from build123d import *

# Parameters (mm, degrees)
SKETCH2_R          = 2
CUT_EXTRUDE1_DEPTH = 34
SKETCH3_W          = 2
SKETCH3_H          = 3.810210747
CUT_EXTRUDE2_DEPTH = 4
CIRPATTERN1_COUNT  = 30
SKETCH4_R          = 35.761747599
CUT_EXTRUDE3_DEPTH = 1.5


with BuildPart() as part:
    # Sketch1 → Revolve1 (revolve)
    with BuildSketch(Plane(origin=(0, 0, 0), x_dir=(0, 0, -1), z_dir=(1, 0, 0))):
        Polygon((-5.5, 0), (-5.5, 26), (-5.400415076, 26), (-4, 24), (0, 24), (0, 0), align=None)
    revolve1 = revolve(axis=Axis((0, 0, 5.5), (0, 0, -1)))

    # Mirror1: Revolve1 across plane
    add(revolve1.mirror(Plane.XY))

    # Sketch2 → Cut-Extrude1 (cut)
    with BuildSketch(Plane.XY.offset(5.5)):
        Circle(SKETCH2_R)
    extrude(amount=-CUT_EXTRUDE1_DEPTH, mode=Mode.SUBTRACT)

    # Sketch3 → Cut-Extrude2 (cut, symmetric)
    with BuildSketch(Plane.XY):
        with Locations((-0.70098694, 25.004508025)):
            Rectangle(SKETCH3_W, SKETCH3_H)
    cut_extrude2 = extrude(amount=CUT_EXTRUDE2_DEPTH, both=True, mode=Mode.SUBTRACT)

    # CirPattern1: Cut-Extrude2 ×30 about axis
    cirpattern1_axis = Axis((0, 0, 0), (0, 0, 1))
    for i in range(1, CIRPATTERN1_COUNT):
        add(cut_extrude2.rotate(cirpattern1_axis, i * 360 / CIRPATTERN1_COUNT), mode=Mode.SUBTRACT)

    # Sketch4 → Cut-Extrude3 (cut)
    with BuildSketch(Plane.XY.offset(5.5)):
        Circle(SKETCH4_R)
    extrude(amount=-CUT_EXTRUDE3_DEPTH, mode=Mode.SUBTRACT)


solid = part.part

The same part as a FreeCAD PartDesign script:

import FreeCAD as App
import Part
import Sketcher

V = App.Vector
Q = App.Units.Quantity

doc = App.newDocument("Part")
body = doc.addObject("PartDesign::Body", "Body")

# Sketch on YZ plane
sketch1 = body.newObject("Sketcher::SketchObject", "Sketch")
sketch1.AttachmentSupport = (doc.getObject("YZ_Plane"), [""])
sketch1.MapMode = "FlatFace"
sketch1.addGeometry([
    Part.LineSegment(V(26, 5.5, 0), V(0, 5.5, 0)),  # 0
    Part.LineSegment(V(0, 5.5, 0), V(0, 0, 0)),  # 1
    Part.LineSegment(V(0, 0, 0), V(24, 0, 0)),  # 2
    Part.LineSegment(V(24, 0, 0), V(24, 4, 0)),  # 3
    Part.LineSegment(V(24, 4, 0), V(26, 5.4, 0)),  # 4
    Part.LineSegment(V(26, 5.4, 0), V(26, 5.5, 0)),  # 5
], False)
sketch1.addConstraint([
    Sketcher.Constraint("Coincident", 0, 2, 1, 1),
    Sketcher.Constraint("Coincident", 1, 2, 2, 1),
    Sketcher.Constraint("Coincident", 2, 2, 3, 1),
    Sketcher.Constraint("Coincident", 3, 2, 4, 1),
    Sketcher.Constraint("Coincident", 4, 2, 5, 1),
    Sketcher.Constraint("Coincident", 5, 2, 0, 1),
    Sketcher.Constraint("Horizontal", 0),
    Sketcher.Constraint("Vertical", 1),
    Sketcher.Constraint("Horizontal", 2),
    Sketcher.Constraint("Vertical", 3),
    Sketcher.Constraint("Vertical", 5),
    Sketcher.Constraint("Coincident", 1, 2, -1, 1),
    Sketcher.Constraint("DistanceX", 0, 2, 0, 1, Q("26 mm")),
    Sketcher.Constraint("DistanceX", 2, 1, 2, 2, Q("24 mm")),
    Sketcher.Constraint("DistanceY", 3, 1, 3, 2, Q("4 mm")),
    Sketcher.Constraint("Angle", 4, Q("35 deg")),
    Sketcher.Constraint("DistanceY", 1, 2, 1, 1, Q("5.5 mm")),
])
revolution = body.newObject("PartDesign::Revolution", "Revolution")
revolution.Profile = sketch1
revolution.ReferenceAxis = (sketch1, ["V_Axis"])
revolution.Angle = 360
doc.recompute()

mirrored = body.newObject("PartDesign::Mirrored", "Mirrored")
mirrored.Originals = [revolution]
mirrored.MirrorPlane = (doc.getObject("XY_Plane"), [""])
body.Tip = mirrored

# Sketch on XY plane
sketch2 = body.newObject("Sketcher::SketchObject", "Sketch001")
sketch2.AttachmentSupport = (doc.getObject("XY_Plane"), [""])
sketch2.MapMode = "FlatFace"
sketch2.AttachmentOffset = App.Placement(V(0, 0, 5.5), App.Rotation())
sketch2.addGeometry(Part.Circle(V(0, 0, 0), V(0, 0, 1), 2), False)
sketch2.addConstraint([
    Sketcher.Constraint("Coincident", 0, 3, -1, 1),
    Sketcher.Constraint("Diameter", 0, Q("4 mm")),
])
pocket1 = body.newObject("PartDesign::Pocket", "Pocket")
pocket1.Profile = sketch2
pocket1.Length = 34

# Sketch on XY plane
sketch3 = body.newObject("Sketcher::SketchObject", "Sketch002")
sketch3.AttachmentSupport = (doc.getObject("XY_Plane"), [""])
sketch3.MapMode = "FlatFace"
sketch3.addGeometry([
    Part.LineSegment(V(-1.7, 26.9, 0), V(-1.7, 23.1, 0)),
    Part.LineSegment(V(-1.7, 23.1, 0), V(0.3, 23.1, 0)),
    Part.LineSegment(V(0.3, 23.1, 0), V(0.3, 26.9, 0)),
    Part.LineSegment(V(0.3, 26.9, 0), V(-1.7, 26.9, 0)),
], False)
sketch3.addConstraint([
    Sketcher.Constraint("Coincident", 0, 2, 1, 1),
    Sketcher.Constraint("Coincident", 1, 2, 2, 1),
    Sketcher.Constraint("Coincident", 2, 2, 3, 1),
    Sketcher.Constraint("Coincident", 3, 2, 0, 1),
    Sketcher.Constraint("Vertical", 0),
    Sketcher.Constraint("Horizontal", 1),
    Sketcher.Constraint("Vertical", 2),
    Sketcher.Constraint("Horizontal", 3),
    Sketcher.Constraint("DistanceX", 1, 1, 1, 2, Q("2 mm")),
    Sketcher.Constraint("DistanceY", 0, 2, 0, 1, Q("3.810211 mm")),
    Sketcher.Constraint("DistanceX", 0, 2, -1, 1, Q("1.700987 mm")),
    Sketcher.Constraint("DistanceY", -1, 1, 0, 2, Q("23.099403 mm")),
])
pocket2 = body.newObject("PartDesign::Pocket", "Pocket001")
pocket2.Profile = sketch3
pocket2.Length = 8
pocket2.Midplane = True
doc.recompute()

polarpattern = body.newObject("PartDesign::PolarPattern", "PolarPattern")
polarpattern.Originals = [pocket2]
polarpattern.Axis = (doc.getObject("Z_Axis"), [""])
polarpattern.Angle = 360
polarpattern.Occurrences = 30
body.Tip = polarpattern

# Sketch on XY plane
sketch4 = body.newObject("Sketcher::SketchObject", "Sketch003")
sketch4.AttachmentSupport = (doc.getObject("XY_Plane"), [""])
sketch4.MapMode = "FlatFace"
sketch4.AttachmentOffset = App.Placement(V(0, 0, 5.5), App.Rotation())
sketch4.addGeometry(Part.Circle(V(0, 0, 0), V(0, 0, 1), 36), False)
sketch4.addConstraint([
    Sketcher.Constraint("Coincident", 0, 3, -1, 1),
    Sketcher.Constraint("Diameter", 0, Q("71.523495 mm")),
])
pocket3 = body.newObject("PartDesign::Pocket", "Pocket002")
pocket3.Profile = sketch4
pocket3.Length = 1.5

doc.recompute()
